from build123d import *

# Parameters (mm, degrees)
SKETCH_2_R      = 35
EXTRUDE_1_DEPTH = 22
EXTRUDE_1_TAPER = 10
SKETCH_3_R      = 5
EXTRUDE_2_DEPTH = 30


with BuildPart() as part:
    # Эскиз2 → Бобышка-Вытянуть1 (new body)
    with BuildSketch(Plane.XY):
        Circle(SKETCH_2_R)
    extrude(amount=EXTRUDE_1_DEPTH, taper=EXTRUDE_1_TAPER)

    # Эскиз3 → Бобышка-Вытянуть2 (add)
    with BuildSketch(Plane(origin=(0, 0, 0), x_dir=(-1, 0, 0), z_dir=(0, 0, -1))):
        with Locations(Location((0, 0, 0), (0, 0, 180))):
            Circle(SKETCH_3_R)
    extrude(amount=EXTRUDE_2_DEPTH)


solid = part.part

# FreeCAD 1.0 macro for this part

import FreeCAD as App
import Part
import Sketcher

V = App.Vector

doc = App.newDocument("Part")
body = doc.addObject("PartDesign::Body", "Body")

sketch1 = doc.addObject("Sketcher::SketchObject", "Sketch")
body.addObject(sketch1)
sketch1.AttachmentSupport = (doc.XY_Plane, [""])
sketch1.MapMode = "FlatFace"
sketch1.addGeometry(Part.Circle(V(0, 0, 0), V(0, 0, 1), 35), False)
sketch1.addConstraint([
    Sketcher.Constraint("Coincident", 0, 3, -1, 1),
    Sketcher.Constraint("Diameter", 0, 70.0),
])
pad1 = doc.addObject("PartDesign::Pad", "Pad")
body.addObject(pad1)
pad1.Profile = sketch1
pad1.Length = 22
pad1.TaperAngle = -10

sketch2 = doc.addObject("Sketcher::SketchObject", "Sketch001")
body.addObject(sketch2)
sketch2.AttachmentSupport = (doc.XY_Plane, [""])
sketch2.MapMode = "FlatFace"
sketch2.addGeometry(Part.Circle(V(0, 0, 0), V(0, 0, 1), 5), False)
sketch2.addConstraint([
    Sketcher.Constraint("Coincident", 0, 3, -1, 1),
    Sketcher.Constraint("Diameter", 0, 10.0),
])
pad2 = doc.addObject("PartDesign::Pad", "Pad001")
body.addObject(pad2)
pad2.Profile = sketch2
pad2.Length = 30
pad2.Reversed = True

doc.recompute()
